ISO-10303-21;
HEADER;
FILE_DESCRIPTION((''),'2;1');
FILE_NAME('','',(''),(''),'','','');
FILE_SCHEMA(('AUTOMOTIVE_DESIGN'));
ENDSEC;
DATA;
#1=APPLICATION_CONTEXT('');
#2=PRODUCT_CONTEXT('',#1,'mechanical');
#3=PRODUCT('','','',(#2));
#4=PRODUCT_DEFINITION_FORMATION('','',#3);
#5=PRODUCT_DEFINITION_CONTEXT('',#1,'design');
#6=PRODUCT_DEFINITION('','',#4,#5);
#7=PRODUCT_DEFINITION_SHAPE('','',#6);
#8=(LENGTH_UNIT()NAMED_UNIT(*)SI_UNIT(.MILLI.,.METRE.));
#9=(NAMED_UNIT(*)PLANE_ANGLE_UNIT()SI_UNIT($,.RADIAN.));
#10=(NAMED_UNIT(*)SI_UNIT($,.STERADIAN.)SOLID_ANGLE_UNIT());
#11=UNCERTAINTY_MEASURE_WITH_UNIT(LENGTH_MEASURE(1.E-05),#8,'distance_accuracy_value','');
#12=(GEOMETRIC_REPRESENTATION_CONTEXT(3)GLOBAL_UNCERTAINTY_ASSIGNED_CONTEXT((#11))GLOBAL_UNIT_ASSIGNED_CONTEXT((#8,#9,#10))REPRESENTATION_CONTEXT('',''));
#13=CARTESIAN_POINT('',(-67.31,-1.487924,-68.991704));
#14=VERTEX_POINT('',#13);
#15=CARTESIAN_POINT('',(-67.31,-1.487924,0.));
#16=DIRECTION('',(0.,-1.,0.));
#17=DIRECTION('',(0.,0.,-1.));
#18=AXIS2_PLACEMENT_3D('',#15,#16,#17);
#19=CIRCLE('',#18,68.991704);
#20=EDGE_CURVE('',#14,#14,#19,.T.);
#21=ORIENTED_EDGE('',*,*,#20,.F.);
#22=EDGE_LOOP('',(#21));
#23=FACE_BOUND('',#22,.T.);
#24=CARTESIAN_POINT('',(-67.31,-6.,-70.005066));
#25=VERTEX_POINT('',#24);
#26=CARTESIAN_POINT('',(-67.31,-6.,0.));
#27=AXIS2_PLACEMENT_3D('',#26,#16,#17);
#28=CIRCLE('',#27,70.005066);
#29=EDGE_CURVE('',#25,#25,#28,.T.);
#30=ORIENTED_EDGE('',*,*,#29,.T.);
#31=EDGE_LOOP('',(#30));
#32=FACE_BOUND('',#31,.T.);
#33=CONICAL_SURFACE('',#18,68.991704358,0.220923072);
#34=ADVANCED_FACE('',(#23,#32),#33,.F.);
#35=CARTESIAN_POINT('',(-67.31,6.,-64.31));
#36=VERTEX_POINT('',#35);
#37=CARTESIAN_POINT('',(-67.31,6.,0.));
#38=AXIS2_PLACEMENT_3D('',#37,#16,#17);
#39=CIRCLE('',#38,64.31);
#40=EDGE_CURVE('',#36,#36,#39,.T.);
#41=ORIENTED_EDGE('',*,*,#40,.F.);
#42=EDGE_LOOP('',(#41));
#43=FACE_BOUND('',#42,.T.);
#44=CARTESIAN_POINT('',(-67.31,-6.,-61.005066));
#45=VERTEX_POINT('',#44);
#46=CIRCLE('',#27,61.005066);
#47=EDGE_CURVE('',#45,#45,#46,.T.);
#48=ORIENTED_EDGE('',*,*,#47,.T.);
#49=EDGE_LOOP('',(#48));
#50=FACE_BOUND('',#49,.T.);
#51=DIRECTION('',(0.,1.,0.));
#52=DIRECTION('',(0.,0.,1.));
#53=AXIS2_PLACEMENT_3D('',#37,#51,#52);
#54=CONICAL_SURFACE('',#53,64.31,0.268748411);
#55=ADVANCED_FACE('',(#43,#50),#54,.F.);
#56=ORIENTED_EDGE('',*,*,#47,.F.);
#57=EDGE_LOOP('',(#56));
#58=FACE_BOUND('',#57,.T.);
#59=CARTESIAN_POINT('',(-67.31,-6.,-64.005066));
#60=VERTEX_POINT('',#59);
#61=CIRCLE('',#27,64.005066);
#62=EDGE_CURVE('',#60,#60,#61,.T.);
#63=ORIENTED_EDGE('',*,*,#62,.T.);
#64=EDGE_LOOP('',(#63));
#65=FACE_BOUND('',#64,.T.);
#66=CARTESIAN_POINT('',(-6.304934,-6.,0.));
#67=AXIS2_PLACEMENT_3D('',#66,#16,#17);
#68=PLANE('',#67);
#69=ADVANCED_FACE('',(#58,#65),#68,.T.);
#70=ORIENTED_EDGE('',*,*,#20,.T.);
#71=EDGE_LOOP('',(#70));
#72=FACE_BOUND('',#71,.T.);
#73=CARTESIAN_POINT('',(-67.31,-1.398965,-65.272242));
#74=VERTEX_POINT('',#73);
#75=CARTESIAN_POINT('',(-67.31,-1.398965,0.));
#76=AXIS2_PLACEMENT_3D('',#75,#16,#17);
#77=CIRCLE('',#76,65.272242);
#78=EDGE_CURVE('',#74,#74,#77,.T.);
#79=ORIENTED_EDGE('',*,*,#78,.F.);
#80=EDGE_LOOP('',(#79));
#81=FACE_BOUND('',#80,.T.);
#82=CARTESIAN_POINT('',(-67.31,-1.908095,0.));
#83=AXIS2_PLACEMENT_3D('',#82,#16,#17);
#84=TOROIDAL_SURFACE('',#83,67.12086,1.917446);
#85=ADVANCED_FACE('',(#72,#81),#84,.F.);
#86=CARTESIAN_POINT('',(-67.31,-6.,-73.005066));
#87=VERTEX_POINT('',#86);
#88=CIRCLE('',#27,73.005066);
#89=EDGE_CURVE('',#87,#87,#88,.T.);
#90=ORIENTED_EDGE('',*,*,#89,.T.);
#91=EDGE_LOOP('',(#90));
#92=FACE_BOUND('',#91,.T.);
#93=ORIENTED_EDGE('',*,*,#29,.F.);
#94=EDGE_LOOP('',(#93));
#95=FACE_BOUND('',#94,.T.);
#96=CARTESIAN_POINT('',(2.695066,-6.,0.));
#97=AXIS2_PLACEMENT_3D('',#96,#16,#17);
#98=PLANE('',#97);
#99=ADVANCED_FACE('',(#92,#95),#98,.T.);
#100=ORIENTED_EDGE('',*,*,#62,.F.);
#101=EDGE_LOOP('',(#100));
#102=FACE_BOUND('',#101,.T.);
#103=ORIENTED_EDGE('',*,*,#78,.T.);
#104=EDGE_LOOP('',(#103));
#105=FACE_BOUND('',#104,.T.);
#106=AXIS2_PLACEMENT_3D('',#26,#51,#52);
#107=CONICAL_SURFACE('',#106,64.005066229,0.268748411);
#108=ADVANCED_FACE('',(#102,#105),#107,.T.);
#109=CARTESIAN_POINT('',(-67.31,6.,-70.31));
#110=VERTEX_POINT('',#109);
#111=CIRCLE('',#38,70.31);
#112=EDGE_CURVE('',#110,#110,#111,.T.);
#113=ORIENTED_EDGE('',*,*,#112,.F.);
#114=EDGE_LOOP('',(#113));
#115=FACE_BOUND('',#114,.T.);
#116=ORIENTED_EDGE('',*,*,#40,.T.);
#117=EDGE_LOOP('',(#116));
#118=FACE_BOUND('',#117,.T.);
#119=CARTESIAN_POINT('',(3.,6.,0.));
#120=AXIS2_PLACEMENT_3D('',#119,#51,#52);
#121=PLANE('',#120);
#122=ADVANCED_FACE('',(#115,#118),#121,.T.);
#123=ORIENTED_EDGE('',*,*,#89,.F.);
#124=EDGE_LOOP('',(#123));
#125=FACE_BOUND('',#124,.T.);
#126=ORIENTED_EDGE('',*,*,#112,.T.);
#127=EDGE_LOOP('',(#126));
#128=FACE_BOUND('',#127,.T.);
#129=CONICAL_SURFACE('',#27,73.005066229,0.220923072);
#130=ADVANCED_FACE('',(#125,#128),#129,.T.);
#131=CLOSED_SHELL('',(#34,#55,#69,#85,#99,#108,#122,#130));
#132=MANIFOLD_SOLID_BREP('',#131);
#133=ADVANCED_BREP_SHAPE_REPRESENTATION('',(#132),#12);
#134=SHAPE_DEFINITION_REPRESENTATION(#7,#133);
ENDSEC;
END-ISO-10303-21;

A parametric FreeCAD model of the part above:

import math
import FreeCAD as App
import Part
import Sketcher
from FreeCAD import Vector

doc = App.newDocument("Part")
params = doc.addObject("Spreadsheet::Sheet", "Params")
for row, (alias, value) in enumerate([
    ("sketch1_width", "6 mm"),
    ("sketch1_width2", "3 mm"),
    ("sketch1_height", "12 mm"),
    ("revolution_angle", "360 deg"),
], start=1):
    params.set(f"A{row}", alias)
    params.set(f"B{row}", "=" + value)
    params.setAlias(f"B{row}", alias)

body = doc.addObject("PartDesign::Body", "Body")

# Sketch on XY plane
sketch1 = body.newObject("Sketcher::SketchObject", "Sketch")
sketch1.AttachmentSupport = (doc.getObject("XY_Plane"), [""])
sketch1.MapMode = "FlatFace"
sketch1.addGeometry([
    Part.LineSegment(Vector(3, 6, 0), Vector(-3, 6, 0)),  # 0
    Part.LineSegment(Vector(-3, 6, 0), Vector(-6.3, -6, 0)),  # 1
    Part.LineSegment(Vector(-6.3, -6, 0), Vector(-3.3, -6, 0)),  # 2
    Part.LineSegment(Vector(-3.3, -6, 0), Vector(-2, -1.4, 0)),  # 3
    Part.ArcOfCircle(Part.Circle(Vector(-0.2, -1.9, 0), Vector(0, 0, 1), 1.9), math.radians(13), math.radians(165)),  # 4
    Part.LineSegment(Vector(1.7, -1.5, 0), Vector(2.7, -6, 0)),  # 5
    Part.LineSegment(Vector(2.7, -6, 0), Vector(5.7, -6, 0)),  # 6
    Part.LineSegment(Vector(5.7, -6, 0), Vector(3, 6, 0)),  # 7
], False)
sketch1.addGeometry(Part.LineSegment(Vector(-67.3, -6, 0), Vector(-67.3, 6, 0)), True)  # axis
sketch1.addConstraint([
    Sketcher.Constraint("Coincident", 0, 2, 1, 1),
    Sketcher.Constraint("Coincident", 1, 2, 2, 1),
    Sketcher.Constraint("Coincident", 2, 2, 3, 1),
    Sketcher.Constraint("Tangent", 3, 2, 4, 2),
    Sketcher.Constraint("Tangent", 4, 1, 5, 1),
    Sketcher.Constraint("Coincident", 5, 2, 6, 1),
    Sketcher.Constraint("Coincident", 6, 2, 7, 1),
    Sketcher.Constraint("Coincident", 7, 2, 0, 1),
    Sketcher.Constraint("Horizontal", 0),
    Sketcher.Constraint("Horizontal", 2),
    Sketcher.Constraint("Horizontal", 6),
    Sketcher.Constraint("Vertical", 8),
    Sketcher.Constraint("Parallel", 1, 3),
    Sketcher.Constraint("Parallel", 5, 7),
    Sketcher.Constraint("Horizontal", 2, 2, 5, 2),
    Sketcher.Constraint("Horizontal", 6, 2, 8, 1),
    Sketcher.Constraint("Horizontal", 7, 2, 8, 2),
    Sketcher.Constraint("Equal", 2, 6),
    Sketcher.Constraint("DistanceX", 0, 2, 0, 1, 6.0),
    Sketcher.Constraint("DistanceX", 2, 1, 2, 2, 3.0),
    Sketcher.Constraint("DistanceY", 8, 1, 8, 2, 12.0),
    Sketcher.Constraint("DistanceX", 0, 2, -1, 1, 3.0),
    Sketcher.Constraint("DistanceY", -1, 1, 0, 2, 6.0),
    Sketcher.Constraint("DistanceX", 2, 2, 5, 2, 6.0),
    Sketcher.Constraint("DistanceX", 8, 1, -1, 1, 67.31),
    Sketcher.Constraint("Radius", 4, 1.917446),
    Sketcher.Constraint("Distance", 1, 12.44679),
])
sketch1.setExpression("Constraints[18]", "Params.sketch1_width")
sketch1.setExpression("Constraints[19]", "Params.sketch1_width2")
sketch1.setExpression("Constraints[20]", "Params.sketch1_height")
revolution = body.newObject("PartDesign::Revolution", "Revolution")
revolution.Profile = sketch1
revolution.ReferenceAxis = (sketch1, ["Axis0"])
revolution.setExpression("Angle", "Params.revolution_angle")

doc.recompute()
